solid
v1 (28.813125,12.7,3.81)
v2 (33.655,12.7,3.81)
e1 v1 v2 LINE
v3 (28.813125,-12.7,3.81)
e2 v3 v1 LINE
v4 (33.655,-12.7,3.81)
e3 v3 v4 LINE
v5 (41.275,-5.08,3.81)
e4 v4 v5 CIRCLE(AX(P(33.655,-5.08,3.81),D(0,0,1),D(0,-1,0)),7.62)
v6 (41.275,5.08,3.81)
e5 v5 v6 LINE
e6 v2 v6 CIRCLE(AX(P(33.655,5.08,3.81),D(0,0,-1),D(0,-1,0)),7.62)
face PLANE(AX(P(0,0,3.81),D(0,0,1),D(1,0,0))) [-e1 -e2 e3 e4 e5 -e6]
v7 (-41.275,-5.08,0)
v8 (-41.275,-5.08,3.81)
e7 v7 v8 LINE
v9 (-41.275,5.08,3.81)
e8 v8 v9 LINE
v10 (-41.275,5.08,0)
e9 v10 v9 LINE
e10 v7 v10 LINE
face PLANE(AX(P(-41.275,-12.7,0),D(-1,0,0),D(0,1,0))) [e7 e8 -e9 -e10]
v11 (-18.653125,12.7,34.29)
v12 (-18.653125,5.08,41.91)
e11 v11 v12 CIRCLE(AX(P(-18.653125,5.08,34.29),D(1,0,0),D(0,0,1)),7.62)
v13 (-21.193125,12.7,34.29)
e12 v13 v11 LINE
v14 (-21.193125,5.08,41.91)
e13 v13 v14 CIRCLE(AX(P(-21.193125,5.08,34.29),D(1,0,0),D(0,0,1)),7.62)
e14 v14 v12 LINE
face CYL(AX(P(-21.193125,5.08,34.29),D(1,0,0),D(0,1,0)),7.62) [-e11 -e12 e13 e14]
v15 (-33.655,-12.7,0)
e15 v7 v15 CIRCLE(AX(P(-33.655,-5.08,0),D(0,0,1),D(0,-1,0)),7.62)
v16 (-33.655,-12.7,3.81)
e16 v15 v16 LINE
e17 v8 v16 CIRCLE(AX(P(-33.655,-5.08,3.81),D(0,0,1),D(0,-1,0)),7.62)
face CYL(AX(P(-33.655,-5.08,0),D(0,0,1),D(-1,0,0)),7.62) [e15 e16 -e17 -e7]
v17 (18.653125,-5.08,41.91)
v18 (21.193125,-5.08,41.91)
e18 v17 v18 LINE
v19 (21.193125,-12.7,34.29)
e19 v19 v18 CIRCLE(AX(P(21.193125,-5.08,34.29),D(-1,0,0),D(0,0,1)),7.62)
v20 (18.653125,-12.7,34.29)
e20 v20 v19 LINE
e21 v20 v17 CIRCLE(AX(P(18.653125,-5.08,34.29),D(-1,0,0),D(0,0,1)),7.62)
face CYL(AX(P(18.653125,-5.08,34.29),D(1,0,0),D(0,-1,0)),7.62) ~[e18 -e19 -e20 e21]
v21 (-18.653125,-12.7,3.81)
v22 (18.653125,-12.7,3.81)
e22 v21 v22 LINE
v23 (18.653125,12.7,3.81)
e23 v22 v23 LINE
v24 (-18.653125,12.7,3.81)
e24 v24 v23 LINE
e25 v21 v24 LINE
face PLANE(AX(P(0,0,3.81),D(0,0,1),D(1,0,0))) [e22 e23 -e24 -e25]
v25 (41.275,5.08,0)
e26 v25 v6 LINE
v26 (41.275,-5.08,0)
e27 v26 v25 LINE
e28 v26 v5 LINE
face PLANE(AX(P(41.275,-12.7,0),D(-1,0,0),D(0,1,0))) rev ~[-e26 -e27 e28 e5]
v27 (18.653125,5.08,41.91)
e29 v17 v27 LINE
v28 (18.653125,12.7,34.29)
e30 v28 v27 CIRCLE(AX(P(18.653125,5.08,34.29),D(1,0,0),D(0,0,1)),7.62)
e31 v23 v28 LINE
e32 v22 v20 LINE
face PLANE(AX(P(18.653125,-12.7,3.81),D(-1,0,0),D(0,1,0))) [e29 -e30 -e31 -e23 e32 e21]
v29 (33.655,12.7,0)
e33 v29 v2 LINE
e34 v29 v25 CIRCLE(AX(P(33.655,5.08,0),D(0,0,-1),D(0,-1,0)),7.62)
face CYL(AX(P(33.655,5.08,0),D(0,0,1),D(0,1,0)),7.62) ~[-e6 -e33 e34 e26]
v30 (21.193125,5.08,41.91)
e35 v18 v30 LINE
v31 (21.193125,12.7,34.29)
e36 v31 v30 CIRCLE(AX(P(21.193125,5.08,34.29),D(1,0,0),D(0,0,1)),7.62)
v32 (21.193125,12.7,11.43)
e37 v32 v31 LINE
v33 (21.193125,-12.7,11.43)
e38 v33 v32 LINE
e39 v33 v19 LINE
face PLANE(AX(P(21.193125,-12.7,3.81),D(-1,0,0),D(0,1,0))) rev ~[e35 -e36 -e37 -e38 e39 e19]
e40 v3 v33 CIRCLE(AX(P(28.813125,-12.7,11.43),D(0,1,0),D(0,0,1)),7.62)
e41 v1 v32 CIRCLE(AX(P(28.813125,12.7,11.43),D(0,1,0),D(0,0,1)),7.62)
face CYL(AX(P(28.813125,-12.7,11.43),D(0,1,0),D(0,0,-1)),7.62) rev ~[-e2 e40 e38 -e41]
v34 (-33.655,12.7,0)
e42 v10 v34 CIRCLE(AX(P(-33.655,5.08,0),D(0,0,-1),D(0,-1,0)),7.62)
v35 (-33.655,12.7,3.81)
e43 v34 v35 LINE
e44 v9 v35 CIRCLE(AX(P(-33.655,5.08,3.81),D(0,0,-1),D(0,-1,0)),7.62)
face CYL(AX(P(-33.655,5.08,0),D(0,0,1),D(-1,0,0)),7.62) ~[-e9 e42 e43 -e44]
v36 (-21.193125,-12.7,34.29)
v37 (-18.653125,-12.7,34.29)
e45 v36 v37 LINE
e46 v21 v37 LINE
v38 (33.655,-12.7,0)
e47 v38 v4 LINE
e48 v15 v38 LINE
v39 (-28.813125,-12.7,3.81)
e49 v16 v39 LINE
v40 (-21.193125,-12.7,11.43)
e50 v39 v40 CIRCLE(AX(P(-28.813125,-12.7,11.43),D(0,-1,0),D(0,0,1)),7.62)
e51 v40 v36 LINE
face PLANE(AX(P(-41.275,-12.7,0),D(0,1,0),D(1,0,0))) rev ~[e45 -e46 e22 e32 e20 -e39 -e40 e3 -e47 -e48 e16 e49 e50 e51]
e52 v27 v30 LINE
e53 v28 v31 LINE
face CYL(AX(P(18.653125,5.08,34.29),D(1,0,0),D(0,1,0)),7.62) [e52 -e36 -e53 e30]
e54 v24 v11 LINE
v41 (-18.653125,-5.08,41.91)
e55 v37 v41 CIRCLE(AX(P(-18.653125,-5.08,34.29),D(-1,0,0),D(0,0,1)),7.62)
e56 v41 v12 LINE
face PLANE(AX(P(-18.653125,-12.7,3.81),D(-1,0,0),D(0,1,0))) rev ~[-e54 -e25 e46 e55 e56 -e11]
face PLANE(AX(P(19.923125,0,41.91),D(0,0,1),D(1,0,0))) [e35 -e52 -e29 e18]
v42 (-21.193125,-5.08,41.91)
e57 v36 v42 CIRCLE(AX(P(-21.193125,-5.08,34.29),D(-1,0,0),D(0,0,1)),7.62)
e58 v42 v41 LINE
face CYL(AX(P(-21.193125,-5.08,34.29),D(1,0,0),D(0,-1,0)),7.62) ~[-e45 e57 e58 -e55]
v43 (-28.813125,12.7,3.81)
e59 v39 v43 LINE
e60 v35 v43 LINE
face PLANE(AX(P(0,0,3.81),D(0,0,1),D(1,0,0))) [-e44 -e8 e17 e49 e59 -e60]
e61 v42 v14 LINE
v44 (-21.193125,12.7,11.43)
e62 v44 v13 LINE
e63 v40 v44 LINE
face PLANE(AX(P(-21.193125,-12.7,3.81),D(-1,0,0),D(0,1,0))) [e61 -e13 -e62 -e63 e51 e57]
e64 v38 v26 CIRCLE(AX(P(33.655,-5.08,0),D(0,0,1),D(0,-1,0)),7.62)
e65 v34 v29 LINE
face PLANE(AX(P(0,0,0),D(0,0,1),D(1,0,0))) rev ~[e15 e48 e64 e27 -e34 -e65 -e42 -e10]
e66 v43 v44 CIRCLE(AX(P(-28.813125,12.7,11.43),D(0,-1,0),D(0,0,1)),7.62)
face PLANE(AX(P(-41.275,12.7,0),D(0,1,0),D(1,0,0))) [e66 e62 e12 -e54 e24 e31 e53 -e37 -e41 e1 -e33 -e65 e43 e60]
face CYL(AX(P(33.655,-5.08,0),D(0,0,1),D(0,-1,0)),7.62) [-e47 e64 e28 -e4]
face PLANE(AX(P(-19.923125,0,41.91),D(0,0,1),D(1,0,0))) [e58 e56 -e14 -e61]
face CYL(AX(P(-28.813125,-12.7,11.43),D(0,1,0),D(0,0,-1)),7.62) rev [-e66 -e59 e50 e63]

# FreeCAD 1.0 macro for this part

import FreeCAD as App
import Part
import Sketcher
Q = App.Units.Quantity


def edges_at(feature, points):
    """Names of the edges that pass closest to the given points."""
    edges = feature.Shape.Edges
    near = lambda p: min(range(len(edges)), key=lambda i: edges[i].distToShape(Part.Vertex(*p))[0])
    return sorted({f"Edge{near(p) + 1}" for p in points})


def add_polygon(sketch, points):
    """Adds a closed chain of lines whose ends are joined by coincident constraints."""
    first, n = sketch.GeometryCount, len(points)
    for a, b in zip(points, points[1:] + points[:1]):
        sketch.addGeometry(Part.LineSegment(App.Vector(*a, 0), App.Vector(*b, 0)), False)
    for i in range(n):
        sketch.addConstraint(Sketcher.Constraint("Coincident", first + i, 2, first + (i + 1) % n, 1))

doc = App.newDocument("Part")
body = doc.addObject("PartDesign::Body", "Body")

sketch1 = body.newObject("Sketcher::SketchObject", "Sketch")
sketch1.AttachmentSupport = (doc.getObject("XY_Plane"), [""])
sketch1.MapMode = "FlatFace"
add_polygon(sketch1, [(-41, 13), (-41, -13), (41, -13), (41, 13)])
sketch1.addConstraint([
    Sketcher.Constraint("Vertical", 0),
    Sketcher.Constraint("Horizontal", 1),
    Sketcher.Constraint("Vertical", 2),
    Sketcher.Constraint("Horizontal", 3),
    Sketcher.Constraint("Symmetric", 0, 2, 2, 2, -1, 1),
    Sketcher.Constraint("DistanceY", 0, 2, 0, 1, Q("1 in")),
    Sketcher.Constraint("DistanceX", 1, 1, 1, 2, Q("3.25 in")),
])
pad1 = body.newObject("PartDesign::Pad", "Pad")
pad1.Profile = sketch1
pad1.Length = Q("0.15 in")

sketch2 = body.newObject("Sketcher::SketchObject", "Sketch001")
sketch2.AttachmentSupport = (doc.getObject("XY_Plane"), [""])
sketch2.MapMode = "FlatFace"
sketch2.AttachmentOffset = App.Placement(App.Vector(0, 0, 0.15 * 25.4), App.Rotation())
add_polygon(sketch2, [(-21.2, 12.7), (-21.2, -12.7), (-18.7, -12.7), (-18.7, 12.7)])
add_polygon(sketch2, [(18.7, 12.7), (18.7, -12.7), (21.2, -12.7), (21.2, 12.7)])
sketch2.addConstraint([
    Sketcher.Constraint("Vertical", 0),
    Sketcher.Constraint("Horizontal", 1),
    Sketcher.Constraint("Vertical", 2),
    Sketcher.Constraint("Horizontal", 3),
    Sketcher.Constraint("Vertical", 4),
    Sketcher.Constraint("Horizontal", 5),
    Sketcher.Constraint("Vertical", 6),
    Sketcher.Constraint("Horizontal", 7),
    Sketcher.Constraint("Symmetric", 2, 2, 4, 2, -1, 1),
    Sketcher.Constraint("Symmetric", 0, 2, 6, 2, -1, 1),
    Sketcher.Constraint("Horizontal", 1, 2, 4, 2),
    Sketcher.Constraint("DistanceY", 0, 2, 0, 1, Q("1 in")),
    Sketcher.Constraint("DistanceX", 1, 1, 1, 2, Q("0.1 in")),
    Sketcher.Constraint("DistanceX", 1, 2, -1, 1, Q("0.734375 in")),
])
pad2 = body.newObject("PartDesign::Pad", "Pad001")
pad2.Profile = sketch2
pad2.Length = Q("1.5 in")
doc.recompute()

fillet = body.newObject("PartDesign::Fillet", "Fillet")
fillet.Base = (pad2, edges_at(pad2, [
    (-41.275, 12.7, 1.905),
    (-41.275, -12.7, 1.905),
    (41.275, 12.7, 1.905),
    (41.275, -12.7, 1.905),
    (-21.193, 0, 3.81),
    (21.193, 0, 3.81),
    (19.923, 12.7, 41.91),
    (-19.923, 12.7, 41.91),
    (-19.923, -12.7, 41.91),
    (19.923, -12.7, 41.91),
]))
fillet.Radius = Q("0.3 in")

doc.recompute()
